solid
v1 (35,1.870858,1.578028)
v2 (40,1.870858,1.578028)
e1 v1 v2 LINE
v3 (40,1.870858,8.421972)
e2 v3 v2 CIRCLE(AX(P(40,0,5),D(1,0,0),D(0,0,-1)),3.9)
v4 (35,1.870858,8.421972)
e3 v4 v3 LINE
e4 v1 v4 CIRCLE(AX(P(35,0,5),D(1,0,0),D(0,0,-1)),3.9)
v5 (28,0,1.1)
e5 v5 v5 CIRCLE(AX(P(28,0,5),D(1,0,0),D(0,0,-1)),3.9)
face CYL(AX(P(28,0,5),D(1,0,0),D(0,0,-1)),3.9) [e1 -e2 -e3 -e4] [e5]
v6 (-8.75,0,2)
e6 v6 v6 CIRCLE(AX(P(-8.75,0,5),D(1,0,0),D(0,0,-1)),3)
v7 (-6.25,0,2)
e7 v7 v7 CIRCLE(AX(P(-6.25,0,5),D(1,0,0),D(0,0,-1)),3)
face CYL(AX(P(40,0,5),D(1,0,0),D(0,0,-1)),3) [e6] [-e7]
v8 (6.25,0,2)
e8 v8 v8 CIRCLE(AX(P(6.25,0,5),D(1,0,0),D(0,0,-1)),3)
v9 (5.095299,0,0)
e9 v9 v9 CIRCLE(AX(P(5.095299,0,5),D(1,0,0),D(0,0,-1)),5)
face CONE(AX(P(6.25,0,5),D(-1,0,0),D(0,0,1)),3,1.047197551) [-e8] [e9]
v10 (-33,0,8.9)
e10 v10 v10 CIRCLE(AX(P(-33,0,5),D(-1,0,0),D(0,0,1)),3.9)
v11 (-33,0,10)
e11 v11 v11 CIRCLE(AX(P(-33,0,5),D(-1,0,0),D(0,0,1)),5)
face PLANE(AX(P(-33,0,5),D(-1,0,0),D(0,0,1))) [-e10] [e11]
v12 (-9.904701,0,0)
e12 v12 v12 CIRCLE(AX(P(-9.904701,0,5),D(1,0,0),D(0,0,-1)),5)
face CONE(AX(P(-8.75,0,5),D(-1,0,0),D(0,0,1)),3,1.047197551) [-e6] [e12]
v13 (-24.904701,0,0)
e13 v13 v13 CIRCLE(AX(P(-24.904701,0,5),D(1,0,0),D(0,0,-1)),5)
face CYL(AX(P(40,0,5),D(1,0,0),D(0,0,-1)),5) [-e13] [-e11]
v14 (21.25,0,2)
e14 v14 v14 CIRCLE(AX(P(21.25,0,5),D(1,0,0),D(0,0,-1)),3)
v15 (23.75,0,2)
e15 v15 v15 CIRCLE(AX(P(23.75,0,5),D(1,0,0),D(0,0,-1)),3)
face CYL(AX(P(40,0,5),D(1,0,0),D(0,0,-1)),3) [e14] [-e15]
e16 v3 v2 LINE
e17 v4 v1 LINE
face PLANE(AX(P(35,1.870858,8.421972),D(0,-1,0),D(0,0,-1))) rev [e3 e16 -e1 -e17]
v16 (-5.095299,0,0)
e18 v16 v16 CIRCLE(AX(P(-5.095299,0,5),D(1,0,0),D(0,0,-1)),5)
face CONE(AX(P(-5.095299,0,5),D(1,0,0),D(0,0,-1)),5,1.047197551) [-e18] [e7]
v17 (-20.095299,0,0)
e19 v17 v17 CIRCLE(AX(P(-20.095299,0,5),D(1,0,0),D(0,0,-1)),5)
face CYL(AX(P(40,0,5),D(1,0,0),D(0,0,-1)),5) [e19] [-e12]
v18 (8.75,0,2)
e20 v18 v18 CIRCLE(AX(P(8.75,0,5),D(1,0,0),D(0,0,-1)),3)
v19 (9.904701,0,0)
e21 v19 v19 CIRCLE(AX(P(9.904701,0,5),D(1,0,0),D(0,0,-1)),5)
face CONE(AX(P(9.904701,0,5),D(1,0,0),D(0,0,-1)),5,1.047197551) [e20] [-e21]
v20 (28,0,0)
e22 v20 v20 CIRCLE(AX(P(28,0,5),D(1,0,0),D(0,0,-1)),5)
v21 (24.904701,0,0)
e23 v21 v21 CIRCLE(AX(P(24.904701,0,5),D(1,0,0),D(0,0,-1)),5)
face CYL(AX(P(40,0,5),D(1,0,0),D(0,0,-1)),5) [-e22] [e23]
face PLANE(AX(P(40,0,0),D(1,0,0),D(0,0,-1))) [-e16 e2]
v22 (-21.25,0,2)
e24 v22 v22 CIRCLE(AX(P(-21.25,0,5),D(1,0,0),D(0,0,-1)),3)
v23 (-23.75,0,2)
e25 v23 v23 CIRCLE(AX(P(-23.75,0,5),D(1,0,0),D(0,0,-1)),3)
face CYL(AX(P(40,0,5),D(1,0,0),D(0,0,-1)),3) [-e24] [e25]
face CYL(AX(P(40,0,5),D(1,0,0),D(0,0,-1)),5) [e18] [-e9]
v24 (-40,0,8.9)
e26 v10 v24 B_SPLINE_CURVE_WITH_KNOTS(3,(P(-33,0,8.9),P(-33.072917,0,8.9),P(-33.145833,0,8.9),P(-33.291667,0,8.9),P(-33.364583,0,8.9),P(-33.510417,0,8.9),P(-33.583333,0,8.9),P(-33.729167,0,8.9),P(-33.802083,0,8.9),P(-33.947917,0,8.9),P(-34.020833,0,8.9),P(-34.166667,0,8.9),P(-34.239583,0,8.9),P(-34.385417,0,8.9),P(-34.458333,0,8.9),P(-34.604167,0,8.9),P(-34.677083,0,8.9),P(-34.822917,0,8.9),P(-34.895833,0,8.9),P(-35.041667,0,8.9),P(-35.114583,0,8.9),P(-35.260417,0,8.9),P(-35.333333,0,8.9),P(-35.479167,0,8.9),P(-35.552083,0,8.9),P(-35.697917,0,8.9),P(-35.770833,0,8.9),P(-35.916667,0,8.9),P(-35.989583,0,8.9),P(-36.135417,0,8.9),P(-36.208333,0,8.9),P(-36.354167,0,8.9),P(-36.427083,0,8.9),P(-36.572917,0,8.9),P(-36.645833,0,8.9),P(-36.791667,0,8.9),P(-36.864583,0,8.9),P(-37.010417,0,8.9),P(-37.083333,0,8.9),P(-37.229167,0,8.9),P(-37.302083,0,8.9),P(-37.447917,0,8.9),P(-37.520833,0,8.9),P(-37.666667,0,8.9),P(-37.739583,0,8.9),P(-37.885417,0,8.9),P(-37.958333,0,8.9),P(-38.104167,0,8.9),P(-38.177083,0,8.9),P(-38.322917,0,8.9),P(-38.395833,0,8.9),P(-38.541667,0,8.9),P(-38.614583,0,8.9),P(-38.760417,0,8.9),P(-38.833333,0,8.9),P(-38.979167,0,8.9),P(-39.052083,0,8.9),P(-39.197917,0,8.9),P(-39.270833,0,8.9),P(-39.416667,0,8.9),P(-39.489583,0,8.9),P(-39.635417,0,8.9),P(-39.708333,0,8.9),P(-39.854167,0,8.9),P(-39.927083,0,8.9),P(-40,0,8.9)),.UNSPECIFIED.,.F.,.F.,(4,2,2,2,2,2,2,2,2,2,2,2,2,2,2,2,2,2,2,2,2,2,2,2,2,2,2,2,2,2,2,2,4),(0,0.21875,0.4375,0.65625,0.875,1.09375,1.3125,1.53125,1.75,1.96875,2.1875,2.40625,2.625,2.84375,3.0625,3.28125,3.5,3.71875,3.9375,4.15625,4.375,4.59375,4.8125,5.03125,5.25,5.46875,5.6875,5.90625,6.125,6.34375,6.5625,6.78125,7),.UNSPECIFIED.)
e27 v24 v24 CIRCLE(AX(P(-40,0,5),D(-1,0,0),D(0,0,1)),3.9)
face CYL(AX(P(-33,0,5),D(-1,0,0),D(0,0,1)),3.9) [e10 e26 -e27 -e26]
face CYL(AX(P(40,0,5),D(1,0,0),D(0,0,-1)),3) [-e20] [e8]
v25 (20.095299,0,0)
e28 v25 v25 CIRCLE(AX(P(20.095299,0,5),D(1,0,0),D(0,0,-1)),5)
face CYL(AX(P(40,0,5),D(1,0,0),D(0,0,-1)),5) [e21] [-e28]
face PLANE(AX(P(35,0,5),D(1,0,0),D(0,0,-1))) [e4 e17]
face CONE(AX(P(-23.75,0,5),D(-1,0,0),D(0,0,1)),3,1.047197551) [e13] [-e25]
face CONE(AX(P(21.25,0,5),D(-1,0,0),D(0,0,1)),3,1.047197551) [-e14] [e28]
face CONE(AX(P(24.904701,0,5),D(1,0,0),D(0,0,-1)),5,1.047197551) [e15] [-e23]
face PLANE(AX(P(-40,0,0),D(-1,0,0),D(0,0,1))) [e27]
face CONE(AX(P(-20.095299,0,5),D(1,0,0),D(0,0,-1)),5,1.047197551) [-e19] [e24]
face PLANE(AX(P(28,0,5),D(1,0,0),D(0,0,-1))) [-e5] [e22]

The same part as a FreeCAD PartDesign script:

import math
import FreeCAD as App
import Part
import Sketcher

V = App.Vector
Q = App.Units.Quantity

doc = App.newDocument("Part")
params = doc.addObject("Spreadsheet::Sheet", "Params")
for row, (alias, value) in enumerate([
    ("sketch1_width", "80 mm"),
    ("sketch1_height", "5 mm"),
    ("sketch1_width2", "2.5 mm"),
    ("revolution_angle", "360 deg"),
    ("sketch2_diameter", "10 mm"),
    ("sketch2_diameter2", "7.8 mm"),
    ("pocket1_length", "7 mm"),
    ("sketch3_diameter", "10 mm"),
    ("sketch3_diameter2", "7.8 mm"),
    ("pocket2_length", "12 mm"),
    ("sketch4_radius", "3.9 mm"),
    ("pocket3_length", "5 mm"),
], start=1):
    params.set(f"A{row}", alias)
    params.set(f"B{row}", "=" + value)
    params.setAlias(f"B{row}", alias)

body = doc.addObject("PartDesign::Body", "Body")

sketch1 = body.newObject("Sketcher::SketchObject", "Sketch")
sketch1.AttachmentSupport = (doc.getObject("XZ_Plane"), [""])
sketch1.MapMode = "FlatFace"
sketch1.addGeometry([
    Part.LineSegment(V(-40, 5, 0), V(40, 5, 0)),
    Part.LineSegment(V(40, 5, 0), V(40, 0, 0)),
    Part.LineSegment(V(40, 0, 0), V(24.9, 0, 0)),
    Part.LineSegment(V(24.9, 0, 0), V(23.8, 2, 0)),
    Part.LineSegment(V(23.8, 2, 0), V(21.2, 2, 0)),
    Part.LineSegment(V(21.2, 2, 0), V(20.1, 0, 0)),
    Part.LineSegment(V(20.1, 0, 0), V(9.9, 0, 0)),
    Part.LineSegment(V(9.9, 0, 0), V(8.8, 2, 0)),
    Part.LineSegment(V(8.8, 2, 0), V(6.2, 2, 0)),
    Part.LineSegment(V(6.2, 2, 0), V(5.1, 0, 0)),
    Part.LineSegment(V(5.1, 0, 0), V(-5.1, 0, 0)),
    Part.LineSegment(V(-5.1, 0, 0), V(-6.2, 2, 0)),
    Part.LineSegment(V(-6.2, 2, 0), V(-8.8, 2, 0)),
    Part.LineSegment(V(-8.8, 2, 0), V(-9.9, 0, 0)),
    Part.LineSegment(V(-9.9, 0, 0), V(-20.1, 0, 0)),
    Part.LineSegment(V(-20.1, 0, 0), V(-21.2, 2, 0)),
    Part.LineSegment(V(-21.2, 2, 0), V(-23.8, 2, 0)),
    Part.LineSegment(V(-23.8, 2, 0), V(-24.9, 0, 0)),
    Part.LineSegment(V(-24.9, 0, 0), V(-40, 0, 0)),
    Part.LineSegment(V(-40, 0, 0), V(-40, 5, 0)),
], False)
sketch1.addGeometry(Part.LineSegment(V(40, 5, 0), V(-40, 5, 0)), True)
sketch1.addConstraint([
    Sketcher.Constraint("Coincident", 0, 2, 1, 1),
    Sketcher.Constraint("Coincident", 1, 2, 2, 1),
    Sketcher.Constraint("Coincident", 2, 2, 3, 1),
    Sketcher.Constraint("Coincident", 3, 2, 4, 1),
    Sketcher.Constraint("Coincident", 4, 2, 5, 1),
    Sketcher.Constraint("Coincident", 5, 2, 6, 1),
    Sketcher.Constraint("Coincident", 6, 2, 7, 1),
    Sketcher.Constraint("Coincident", 7, 2, 8, 1),
    Sketcher.Constraint("Coincident", 8, 2, 9, 1),
    Sketcher.Constraint("Coincident", 9, 2, 10, 1),
    Sketcher.Constraint("Coincident", 10, 2, 11, 1),
    Sketcher.Constraint("Coincident", 11, 2, 12, 1),
    Sketcher.Constraint("Coincident", 12, 2, 13, 1),
    Sketcher.Constraint("Coincident", 13, 2, 14, 1),
    Sketcher.Constraint("Coincident", 14, 2, 15, 1),
    Sketcher.Constraint("Coincident", 15, 2, 16, 1),
    Sketcher.Constraint("Coincident", 16, 2, 17, 1),
    Sketcher.Constraint("Coincident", 17, 2, 18, 1),
    Sketcher.Constraint("Coincident", 18, 2, 19, 1),
    Sketcher.Constraint("Coincident", 19, 2, 0, 1),
    Sketcher.Constraint("Horizontal", 0),
    Sketcher.Constraint("Vertical", 1),
    Sketcher.Constraint("Horizontal", 2),
    Sketcher.Constraint("Horizontal", 4),
    Sketcher.Constraint("Horizontal", 6),
    Sketcher.Constraint("Horizontal", 8),
    Sketcher.Constraint("Horizontal", 10),
    Sketcher.Constraint("Horizontal", 12),
    Sketcher.Constraint("Horizontal", 14),
    Sketcher.Constraint("Horizontal", 16),
    Sketcher.Constraint("Horizontal", 18),
    Sketcher.Constraint("Vertical", 19),
    Sketcher.Constraint("Horizontal", 20),
    Sketcher.Constraint("Coincident", 20, 1, 0, 2),
    Sketcher.Constraint("Symmetric", 9, 2, 10, 2, -1, 1),
    Sketcher.Constraint("Symmetric", 6, 2, 13, 2, -1, 1),
    Sketcher.Constraint("Symmetric", 2, 2, 17, 2, -1, 1),
    Sketcher.Constraint("Symmetric", 8, 2, 11, 2, -2),
    Sketcher.Constraint("Symmetric", 5, 2, 14, 2, -2),
    Sketcher.Constraint("Symmetric", 4, 2, 15, 2, -2),
    Sketcher.Constraint("Symmetric", 1, 2, 18, 2, -2),
    Sketcher.Constraint("Parallel", 3, 7),
    Sketcher.Constraint("Parallel", 5, 9),
    Sketcher.Constraint("Parallel", 7, 11),
    Sketcher.Constraint("Parallel", 9, 13),
    Sketcher.Constraint("Parallel", 13, 17),
    Sketcher.Constraint("Horizontal", 4, 2, 7, 2),
    Sketcher.Constraint("Vertical", 18, 2, 20, 2),
    Sketcher.Constraint("Equal", 4, 8),
    Sketcher.Constraint("Equal", 6, 10),
    Sketcher.Constraint("DistanceX", 0, 1, 0, 2, Q("80 mm")),
    Sketcher.Constraint("DistanceY", 1, 2, 1, 1, Q("5 mm")),
    Sketcher.Constraint("Angle", 3, Q("120 deg")),
    Sketcher.Constraint("DistanceX", 4, 2, 4, 1, Q("2.5 mm")),
    Sketcher.Constraint("DistanceY", -1, 1, 3, 2, Q("2 mm")),
    Sketcher.Constraint("DistanceX", 6, 2, 2, 2, Q("15 mm")),
])
sketch1.setExpression("Constraints[50]", "Params.sketch1_width")
sketch1.setExpression("Constraints[51]", "Params.sketch1_height")
sketch1.setExpression("Constraints[53]", "Params.sketch1_width2")
revolution = body.newObject("PartDesign::Revolution", "Revolution")
revolution.Profile = sketch1
revolution.ReferenceAxis = (sketch1, ["Axis0"])
revolution.setExpression("Angle", "Params.revolution_angle")

sketch2 = body.newObject("Sketcher::SketchObject", "Sketch001")
sketch2.AttachmentSupport = (doc.getObject("YZ_Plane"), [""])
sketch2.MapMode = "FlatFace"
sketch2.AttachmentOffset = App.Placement(V(0, 0, -33), App.Rotation())
sketch2.addGeometry([
    Part.Circle(V(0, 5, 0), V(0, 0, 1), 5),
    Part.Circle(V(0, 5, 0), V(0, 0, 1), 3.9),
], False)
sketch2.addConstraint([
    Sketcher.Constraint("Coincident", 1, 3, 0, 3),
    Sketcher.Constraint("PointOnObject", 0, 3, -2),
    Sketcher.Constraint("Diameter", 0, Q("10 mm")),
    Sketcher.Constraint("Diameter", 1, Q("7.8 mm")),
    Sketcher.Constraint("DistanceY", -1, 1, 0, 3, Q("5 mm")),
])
sketch2.setExpression("Constraints[2]", "Params.sketch2_diameter")
sketch2.setExpression("Constraints[3]", "Params.sketch2_diameter2")
pocket1 = body.newObject("PartDesign::Pocket", "Pocket")
pocket1.Profile = sketch2
pocket1.setExpression("Length", "Params.pocket1_length")

sketch3 = body.newObject("Sketcher::SketchObject", "Sketch002")
sketch3.AttachmentSupport = (doc.getObject("YZ_Plane"), [""])
sketch3.MapMode = "FlatFace"
sketch3.AttachmentOffset = App.Placement(V(0, 0, 40), App.Rotation())
sketch3.addGeometry([
    Part.Circle(V(0, 5, 0), V(0, 0, 1), 5),
    Part.Circle(V(0, 5, 0), V(0, 0, 1), 3.9),
], False)
sketch3.addConstraint([
    Sketcher.Constraint("Coincident", 1, 3, 0, 3),
    Sketcher.Constraint("PointOnObject", 0, 3, -2),
    Sketcher.Constraint("Diameter", 0, Q("10 mm")),
    Sketcher.Constraint("Diameter", 1, Q("7.8 mm")),
    Sketcher.Constraint("DistanceY", -1, 1, 0, 3, Q("5 mm")),
])
sketch3.setExpression("Constraints[2]", "Params.sketch3_diameter")
sketch3.setExpression("Constraints[3]", "Params.sketch3_diameter2")
pocket2 = body.newObject("PartDesign::Pocket", "Pocket001")
pocket2.Profile = sketch3
pocket2.setExpression("Length", "Params.pocket2_length")

sketch4 = body.newObject("Sketcher::SketchObject", "Sketch003")
sketch4.AttachmentSupport = (doc.getObject("YZ_Plane"), [""])
sketch4.MapMode = "FlatFace"
sketch4.AttachmentOffset = App.Placement(V(0, 0, 40), App.Rotation())
sketch4.addGeometry([
    Part.LineSegment(V(1.9, 8.4, 0), V(1.9, 1.6, 0)),
    Part.ArcOfCircle(Part.Circle(V(0, 5, 0), V(0, 0, 1), 3.9), math.radians(-61), math.radians(61)),
], False)
sketch4.addConstraint([
    Sketcher.Constraint("Coincident", 0, 1, 1, 2),
    Sketcher.Constraint("Coincident", 1, 1, 0, 2),
    Sketcher.Constraint("Vertical", 0),
    Sketcher.Constraint("PointOnObject", 1, 3, -2),
    Sketcher.Constraint("Radius", 1, Q("3.9 mm")),
    Sketcher.Constraint("DistanceY", -1, 1, 1, 3, Q("5 mm")),
    Sketcher.Constraint("DistanceY", 0, 2, 0, 1, Q("6.843943 mm")),
])
sketch4.setExpression("Constraints[4]", "Params.sketch4_radius")
pocket3 = body.newObject("PartDesign::Pocket", "Pocket002")
pocket3.Profile = sketch4
pocket3.setExpression("Length", "Params.pocket3_length")

doc.recompute()
